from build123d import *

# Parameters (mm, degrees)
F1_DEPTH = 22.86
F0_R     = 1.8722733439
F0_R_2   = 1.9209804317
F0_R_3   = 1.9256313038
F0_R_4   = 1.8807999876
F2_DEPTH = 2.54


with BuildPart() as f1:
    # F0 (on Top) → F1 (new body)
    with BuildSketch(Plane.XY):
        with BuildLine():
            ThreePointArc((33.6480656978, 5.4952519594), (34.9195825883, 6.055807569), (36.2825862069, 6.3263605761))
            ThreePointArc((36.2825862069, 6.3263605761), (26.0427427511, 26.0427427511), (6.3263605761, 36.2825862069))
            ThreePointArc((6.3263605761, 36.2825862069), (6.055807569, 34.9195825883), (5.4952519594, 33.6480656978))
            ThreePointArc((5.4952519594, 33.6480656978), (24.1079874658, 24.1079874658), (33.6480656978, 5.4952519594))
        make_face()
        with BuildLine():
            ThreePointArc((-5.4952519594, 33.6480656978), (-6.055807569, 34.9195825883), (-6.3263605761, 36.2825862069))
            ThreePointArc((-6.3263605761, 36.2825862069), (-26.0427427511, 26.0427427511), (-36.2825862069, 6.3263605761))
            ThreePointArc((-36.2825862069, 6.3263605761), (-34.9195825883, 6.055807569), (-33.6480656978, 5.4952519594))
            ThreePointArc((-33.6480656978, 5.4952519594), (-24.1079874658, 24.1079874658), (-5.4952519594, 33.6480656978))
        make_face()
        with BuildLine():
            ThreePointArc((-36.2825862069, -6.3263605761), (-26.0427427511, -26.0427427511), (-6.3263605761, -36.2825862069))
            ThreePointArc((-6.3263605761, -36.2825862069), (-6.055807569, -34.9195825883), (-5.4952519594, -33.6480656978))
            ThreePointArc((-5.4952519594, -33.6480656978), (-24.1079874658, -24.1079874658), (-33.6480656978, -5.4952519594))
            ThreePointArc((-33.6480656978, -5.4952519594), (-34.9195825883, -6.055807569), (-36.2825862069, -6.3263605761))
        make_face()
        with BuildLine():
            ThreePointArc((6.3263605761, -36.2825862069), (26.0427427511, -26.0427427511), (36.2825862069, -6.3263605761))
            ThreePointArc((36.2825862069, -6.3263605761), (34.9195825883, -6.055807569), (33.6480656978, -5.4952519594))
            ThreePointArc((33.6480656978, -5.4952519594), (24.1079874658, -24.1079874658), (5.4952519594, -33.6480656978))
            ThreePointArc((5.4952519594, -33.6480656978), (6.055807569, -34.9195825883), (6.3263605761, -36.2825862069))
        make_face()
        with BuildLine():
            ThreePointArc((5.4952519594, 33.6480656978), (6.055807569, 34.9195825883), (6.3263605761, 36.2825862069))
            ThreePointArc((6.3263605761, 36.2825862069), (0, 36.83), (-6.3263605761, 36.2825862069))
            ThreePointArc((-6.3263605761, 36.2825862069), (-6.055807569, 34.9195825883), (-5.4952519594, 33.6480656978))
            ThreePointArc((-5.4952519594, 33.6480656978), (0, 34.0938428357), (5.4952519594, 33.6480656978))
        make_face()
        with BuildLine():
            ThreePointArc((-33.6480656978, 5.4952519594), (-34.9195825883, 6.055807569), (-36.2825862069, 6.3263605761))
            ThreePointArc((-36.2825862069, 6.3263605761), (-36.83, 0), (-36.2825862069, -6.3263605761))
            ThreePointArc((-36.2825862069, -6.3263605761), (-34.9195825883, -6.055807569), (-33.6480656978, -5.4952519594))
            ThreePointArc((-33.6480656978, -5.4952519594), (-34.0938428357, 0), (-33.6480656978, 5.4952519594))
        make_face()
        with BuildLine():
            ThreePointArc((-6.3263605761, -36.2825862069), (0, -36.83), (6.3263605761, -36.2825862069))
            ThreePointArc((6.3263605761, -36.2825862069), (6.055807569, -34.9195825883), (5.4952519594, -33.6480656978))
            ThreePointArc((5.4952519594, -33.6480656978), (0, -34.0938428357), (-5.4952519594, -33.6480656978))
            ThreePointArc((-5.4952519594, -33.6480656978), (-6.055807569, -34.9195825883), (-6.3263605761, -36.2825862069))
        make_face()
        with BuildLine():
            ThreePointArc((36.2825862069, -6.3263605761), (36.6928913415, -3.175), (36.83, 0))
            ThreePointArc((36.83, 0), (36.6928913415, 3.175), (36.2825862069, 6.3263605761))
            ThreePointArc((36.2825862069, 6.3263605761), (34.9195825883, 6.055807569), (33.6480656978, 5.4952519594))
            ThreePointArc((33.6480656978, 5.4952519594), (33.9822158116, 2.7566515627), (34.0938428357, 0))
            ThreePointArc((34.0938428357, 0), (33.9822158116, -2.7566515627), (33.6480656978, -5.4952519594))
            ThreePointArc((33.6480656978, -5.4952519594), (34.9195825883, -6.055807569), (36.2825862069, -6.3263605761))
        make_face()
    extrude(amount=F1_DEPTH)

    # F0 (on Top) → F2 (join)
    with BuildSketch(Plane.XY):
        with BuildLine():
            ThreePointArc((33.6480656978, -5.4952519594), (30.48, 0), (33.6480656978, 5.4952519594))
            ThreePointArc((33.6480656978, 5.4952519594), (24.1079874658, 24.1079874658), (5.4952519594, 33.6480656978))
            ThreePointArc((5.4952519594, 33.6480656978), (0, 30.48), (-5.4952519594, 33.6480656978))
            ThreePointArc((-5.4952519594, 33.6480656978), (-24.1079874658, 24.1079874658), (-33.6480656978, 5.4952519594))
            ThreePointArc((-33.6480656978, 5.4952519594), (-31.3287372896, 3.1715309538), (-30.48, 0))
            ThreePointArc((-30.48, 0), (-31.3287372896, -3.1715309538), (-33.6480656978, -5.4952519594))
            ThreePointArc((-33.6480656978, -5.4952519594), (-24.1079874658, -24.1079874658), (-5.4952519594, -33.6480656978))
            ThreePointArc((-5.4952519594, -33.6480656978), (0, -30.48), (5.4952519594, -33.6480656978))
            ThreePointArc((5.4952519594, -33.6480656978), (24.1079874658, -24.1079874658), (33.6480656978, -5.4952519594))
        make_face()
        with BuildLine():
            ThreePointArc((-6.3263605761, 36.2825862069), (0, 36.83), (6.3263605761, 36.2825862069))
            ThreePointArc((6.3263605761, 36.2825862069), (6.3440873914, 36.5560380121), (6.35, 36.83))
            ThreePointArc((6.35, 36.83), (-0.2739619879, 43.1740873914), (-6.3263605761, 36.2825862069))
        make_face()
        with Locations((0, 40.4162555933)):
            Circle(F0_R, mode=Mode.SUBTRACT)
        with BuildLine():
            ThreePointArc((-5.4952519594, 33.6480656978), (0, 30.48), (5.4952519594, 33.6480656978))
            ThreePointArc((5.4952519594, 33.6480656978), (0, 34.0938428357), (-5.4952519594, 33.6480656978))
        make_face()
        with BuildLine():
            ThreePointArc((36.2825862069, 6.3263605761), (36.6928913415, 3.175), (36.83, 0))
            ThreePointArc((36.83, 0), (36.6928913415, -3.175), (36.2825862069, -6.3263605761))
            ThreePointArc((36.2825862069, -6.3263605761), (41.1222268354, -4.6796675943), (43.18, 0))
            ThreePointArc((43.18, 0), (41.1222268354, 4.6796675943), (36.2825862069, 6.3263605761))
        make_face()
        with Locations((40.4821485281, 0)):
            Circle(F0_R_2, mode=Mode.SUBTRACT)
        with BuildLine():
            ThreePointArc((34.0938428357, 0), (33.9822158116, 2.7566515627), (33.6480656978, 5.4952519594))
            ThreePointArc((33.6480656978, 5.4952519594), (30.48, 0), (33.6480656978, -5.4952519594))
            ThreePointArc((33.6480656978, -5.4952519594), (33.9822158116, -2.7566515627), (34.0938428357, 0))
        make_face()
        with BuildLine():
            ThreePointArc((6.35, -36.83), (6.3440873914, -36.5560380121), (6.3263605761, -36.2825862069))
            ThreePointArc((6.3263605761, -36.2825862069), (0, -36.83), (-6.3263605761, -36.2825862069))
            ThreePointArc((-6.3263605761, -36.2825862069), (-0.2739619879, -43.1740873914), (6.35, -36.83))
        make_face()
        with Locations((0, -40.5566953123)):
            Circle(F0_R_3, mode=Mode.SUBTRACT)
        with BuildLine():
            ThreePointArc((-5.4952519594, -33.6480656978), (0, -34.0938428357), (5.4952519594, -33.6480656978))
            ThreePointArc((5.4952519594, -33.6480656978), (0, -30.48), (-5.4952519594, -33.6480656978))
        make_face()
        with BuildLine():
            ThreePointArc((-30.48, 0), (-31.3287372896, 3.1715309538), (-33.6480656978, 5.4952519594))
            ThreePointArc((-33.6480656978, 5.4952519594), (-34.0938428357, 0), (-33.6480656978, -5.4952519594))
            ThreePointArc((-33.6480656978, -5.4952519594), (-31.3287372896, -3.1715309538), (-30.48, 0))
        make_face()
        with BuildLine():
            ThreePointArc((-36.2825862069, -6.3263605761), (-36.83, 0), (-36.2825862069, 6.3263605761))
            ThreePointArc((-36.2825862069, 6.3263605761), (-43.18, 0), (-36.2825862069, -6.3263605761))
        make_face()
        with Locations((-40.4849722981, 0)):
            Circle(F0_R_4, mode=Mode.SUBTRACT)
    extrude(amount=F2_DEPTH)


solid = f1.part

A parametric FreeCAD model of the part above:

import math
import FreeCAD as App
import Part
import Sketcher
Q = App.Units.Quantity

doc = App.newDocument("Part")
params = doc.addObject("Spreadsheet::Sheet", "Params")
for row, (alias, value) in enumerate([
    ("sketch1_radius", "1.45 in"),
    ("pad1_length", "0.9 in"),
    ("sketch2_radius", "1.45 in"),
    ("sketch2_radius2", "0.25 in"),
    ("pad2_length", "0.1 in"),
], start=1):
    params.set(f"A{row}", alias)
    params.set(f"B{row}", "=" + value)
    params.setAlias(f"B{row}", alias)

body = doc.addObject("PartDesign::Body", "Body")

# Sketch on XY plane
sketch1 = body.newObject("Sketcher::SketchObject", "Sketch")
sketch1.AttachmentSupport = (doc.getObject("XY_Plane"), [""])
sketch1.MapMode = "FlatFace"
sketch1.addGeometry([
    Part.ArcOfCircle(Part.Circle(App.Vector(0, 0, 0), App.Vector(0, 0, 1), 37), math.radians(10), math.radians(350)),  # 0
    Part.ArcOfCircle(Part.Circle(App.Vector(0, 0, 0), App.Vector(0, 0, 1), 37), math.radians(-9.89), math.radians(0)),  # 1
    Part.ArcOfCircle(Part.Circle(App.Vector(0, 0, 0), App.Vector(0, 0, 1), 37), math.radians(0), math.radians(9.89)),  # 2
    Part.ArcOfCircle(Part.Circle(App.Vector(0, 0, 0), App.Vector(0, 0, 1), 34), math.radians(-81), math.radians(-9)),  # 3
    Part.ArcOfCircle(Part.Circle(App.Vector(0, 0, 0), App.Vector(0, 0, 1), 34), math.radians(-99.28), math.radians(-80.72)),  # 4
    Part.ArcOfCircle(Part.Circle(App.Vector(0, 0, 0), App.Vector(0, 0, 1), 34), math.radians(-171), math.radians(-99)),  # 5
    Part.ArcOfCircle(Part.Circle(App.Vector(0, 0, 0), App.Vector(0, 0, 1), 34), math.radians(170.72), math.radians(189.28)),  # 6
    Part.ArcOfCircle(Part.Circle(App.Vector(0, 0, 0), App.Vector(0, 0, 1), 34), math.radians(99), math.radians(171)),  # 7
    Part.ArcOfCircle(Part.Circle(App.Vector(0, 0, 0), App.Vector(0, 0, 1), 34), math.radians(80.72), math.radians(99.28)),  # 8
    Part.ArcOfCircle(Part.Circle(App.Vector(0, 0, 0), App.Vector(0, 0, 1), 34), math.radians(9), math.radians(81)),  # 9
    Part.ArcOfCircle(Part.Circle(App.Vector(0, 0, 0), App.Vector(0, 0, 1), 34), math.radians(0), math.radians(9.28)),  # 10
    Part.ArcOfCircle(Part.Circle(App.Vector(0, 0, 0), App.Vector(0, 0, 1), 34), math.radians(-9.28), math.radians(0)),  # 11
], False)
sketch1.addConstraint([
    Sketcher.Constraint("Tangent", 0, 2, 1, 1),
    Sketcher.Constraint("Tangent", 1, 2, 2, 1),
    Sketcher.Constraint("Coincident", 2, 2, 0, 1),
    Sketcher.Constraint("Tangent", 3, 1, 4, 2),
    Sketcher.Constraint("Tangent", 4, 1, 5, 2),
    Sketcher.Constraint("Tangent", 5, 1, 6, 2),
    Sketcher.Constraint("Tangent", 6, 1, 7, 2),
    Sketcher.Constraint("Tangent", 7, 1, 8, 2),
    Sketcher.Constraint("Tangent", 8, 1, 9, 2),
    Sketcher.Constraint("Tangent", 9, 1, 10, 2),
    Sketcher.Constraint("Tangent", 10, 1, 11, 2),
    Sketcher.Constraint("Tangent", 11, 1, 3, 2),
    Sketcher.Constraint("Coincident", 0, 3, -1, 1),
    Sketcher.Constraint("Coincident", 3, 3, -1, 1),
    Sketcher.Constraint("Coincident", 5, 3, -1, 1),
    Sketcher.Constraint("Coincident", 7, 3, -1, 1),
    Sketcher.Constraint("Coincident", 9, 3, -1, 1),
    Sketcher.Constraint("Equal", 0, 1),
    Sketcher.Constraint("PointOnObject", 1, 2, -1),
    Sketcher.Constraint("PointOnObject", 10, 1, -1),
    Sketcher.Constraint("Horizontal", 3, 1, 4, 1),
    Sketcher.Constraint("Horizontal", 7, 1, 8, 1),
    Sketcher.Constraint("Horizontal", 6, 1, 9, 1),
    Sketcher.Constraint("Horizontal", 5, 1, 11, 1),
    Sketcher.Constraint("Vertical", 0, 2, 2, 2),
    Sketcher.Constraint("Vertical", 5, 1, 6, 1),
    Sketcher.Constraint("Vertical", 4, 1, 7, 1),
    Sketcher.Constraint("Radius", 0, Q("1.45 in")),
    Sketcher.Constraint("Radius", 3, 34.093843),
    Sketcher.Constraint("DistanceY", 0, 2, -1, 1, 6.326361),
    Sketcher.Constraint("DistanceX", -1, 1, 3, 1, 5.495252),
    Sketcher.Constraint("DistanceY", 5, 1, -1, 1, 5.495252),
])
sketch1.setExpression("Constraints[27]", "Params.sketch1_radius")
pad1 = body.newObject("PartDesign::Pad", "Pad")
pad1.Profile = sketch1
pad1.setExpression("Length", "Params.pad1_length")

# Sketch on XY plane
sketch2 = body.newObject("Sketcher::SketchObject", "Sketch001")
sketch2.AttachmentSupport = (doc.getObject("XY_Plane"), [""])
sketch2.MapMode = "FlatFace"
sketch2.addGeometry([
    Part.ArcOfCircle(Part.Circle(App.Vector(0, 0, 0), App.Vector(0, 0, 1), 34.1), math.radians(9), math.radians(81)),  # 0
    Part.ArcOfCircle(Part.Circle(App.Vector(0, 0, 0), App.Vector(0, 0, 1), 34.1), math.radians(80.72), math.radians(99.28)),  # 1
    Part.ArcOfCircle(Part.Circle(App.Vector(0, 0, 0), App.Vector(0, 0, 1), 34.1), math.radians(99), math.radians(171)),  # 2
    Part.ArcOfCircle(Part.Circle(App.Vector(0, 0, 0), App.Vector(0, 0, 1), 34.1), math.radians(170.72), math.radians(189.28)),  # 3
    Part.ArcOfCircle(Part.Circle(App.Vector(0, 0, 0), App.Vector(0, 0, 1), 34.1), math.radians(-171), math.radians(-99)),  # 4
    Part.ArcOfCircle(Part.Circle(App.Vector(0, 0, 0), App.Vector(0, 0, 1), 34.1), math.radians(-99.28), math.radians(-80.72)),  # 5
    Part.ArcOfCircle(Part.Circle(App.Vector(0, 0, 0), App.Vector(0, 0, 1), 34.1), math.radians(-81), math.radians(-9)),  # 6
    Part.ArcOfCircle(Part.Circle(App.Vector(0, 0, 0), App.Vector(0, 0, 1), 34.1), math.radians(-9.28), math.radians(0)),  # 7
    Part.ArcOfCircle(Part.Circle(App.Vector(0, 0, 0), App.Vector(0, 0, 1), 34.1), math.radians(0), math.radians(9.28)),  # 8
    Part.ArcOfCircle(Part.Circle(App.Vector(0, 0, 0), App.Vector(0, 0, 1), 36.8), math.radians(80.11), math.radians(99.89)),  # 9
    Part.ArcOfCircle(Part.Circle(App.Vector(0, 36.8, 0), App.Vector(0, 0, 1), 6.3), math.radians(-4.95), math.radians(0)),  # 10
    Part.ArcOfCircle(Part.Circle(App.Vector(0, 36.8, 0), App.Vector(0, 0, 1), 6.3), math.radians(0), math.radians(185)),  # 11
    Part.Circle(App.Vector(0, 40.4, 0), App.Vector(0, 0, 1), 1.9),  # 12
    Part.ArcOfCircle(Part.Circle(App.Vector(0, 0, 0), App.Vector(0, 0, 1), 36.8), math.radians(0), math.radians(9.89)),  # 13
    Part.ArcOfCircle(Part.Circle(App.Vector(0, 0, 0), App.Vector(0, 0, 1), 36.8), math.radians(-9.89), math.radians(0)),  # 14
    Part.ArcOfCircle(Part.Circle(App.Vector(36.8, 0, 0), App.Vector(0, 0, 1), 6.3), math.radians(-95), math.radians(0)),  # 15
    Part.ArcOfCircle(Part.Circle(App.Vector(36.8, 0, 0), App.Vector(0, 0, 1), 6.3), math.radians(0), math.radians(95)),  # 16
    Part.Circle(App.Vector(40.5, 0, 0), App.Vector(0, 0, 1), 1.9),  # 17
    Part.ArcOfCircle(Part.Circle(App.Vector(0, -36.8, 0), App.Vector(0, 0, 1), 6.3), math.radians(0), math.radians(4.95)),  # 18
    Part.ArcOfCircle(Part.Circle(App.Vector(0, 0, 0), App.Vector(0, 0, 1), 36.8), math.radians(-99.89), math.radians(-80.11)),  # 19
    Part.ArcOfCircle(Part.Circle(App.Vector(0, -36.8, 0), App.Vector(0, 0, 1), 6.3), math.radians(175), math.radians(360)),  # 20
    Part.Circle(App.Vector(0, -40.6, 0), App.Vector(0, 0, 1), 1.9),  # 21
    Part.ArcOfCircle(Part.Circle(App.Vector(0, 0, 0), App.Vector(0, 0, 1), 36.8), math.radians(170.11), math.radians(189.89)),  # 22
    Part.ArcOfCircle(Part.Circle(App.Vector(-36.8, 0, 0), App.Vector(0, 0, 1), 6.3), math.radians(85), math.radians(275)),  # 23
    Part.Circle(App.Vector(-40.5, 0, 0), App.Vector(0, 0, 1), 1.9),  # 24
], False)
sketch2.addConstraint([
    Sketcher.Constraint("Tangent", 0, 2, 1, 1),
    Sketcher.Constraint("Tangent", 1, 2, 2, 1),
    Sketcher.Constraint("Tangent", 2, 2, 3, 1),
    Sketcher.Constraint("Tangent", 3, 2, 4, 1),
    Sketcher.Constraint("Tangent", 4, 2, 5, 1),
    Sketcher.Constraint("Tangent", 5, 2, 6, 1),
    Sketcher.Constraint("Tangent", 6, 2, 7, 1),
    Sketcher.Constraint("Tangent", 7, 2, 8, 1),
    Sketcher.Constraint("Tangent", 8, 2, 0, 1),
    Sketcher.Constraint("Coincident", 9, 1, 10, 1),
    Sketcher.Constraint("Tangent", 10, 2, 11, 1),
    Sketcher.Constraint("Coincident", 11, 2, 9, 2),
    Sketcher.Constraint("Tangent", 13, 1, 14, 2),
    Sketcher.Constraint("Coincident", 14, 1, 15, 1),
    Sketcher.Constraint("Tangent", 15, 2, 16, 1),
    Sketcher.Constraint("Coincident", 16, 2, 13, 2),
    Sketcher.Constraint("Coincident", 18, 2, 19, 2),
    Sketcher.Constraint("Coincident", 19, 1, 20, 1),
    Sketcher.Constraint("Tangent", 20, 2, 18, 1),
    Sketcher.Constraint("Coincident", 22, 1, 23, 1),
    Sketcher.Constraint("Coincident", 23, 2, 22, 2),
    Sketcher.Constraint("Coincident", 0, 3, -1, 1),
    Sketcher.Constraint("Coincident", 2, 3, -1, 1),
    Sketcher.Constraint("Coincident", 4, 3, -1, 1),
    Sketcher.Constraint("Coincident", 6, 3, -1, 1),
    Sketcher.Constraint("Coincident", 9, 3, -1, 1),
    Sketcher.Constraint("Coincident", 13, 3, -1, 1),
    Sketcher.Constraint("Coincident", 19, 3, -1, 1),
    Sketcher.Constraint("Coincident", 22, 3, -1, 1),
    Sketcher.Constraint("Coincident", 13, 1, 15, 3),
    Sketcher.Constraint("Equal", 10, 11),
    Sketcher.Constraint("Equal", 9, 13),
    Sketcher.Constraint("Equal", 13, 14),
    Sketcher.Constraint("Equal", 11, 15),
    Sketcher.Constraint("Equal", 15, 16),
    Sketcher.Constraint("Equal", 16, 18),
    Sketcher.Constraint("Equal", 14, 19),
    Sketcher.Constraint("Equal", 18, 20),
    Sketcher.Constraint("Equal", 19, 22),
    Sketcher.Constraint("Equal", 20, 23),
    Sketcher.Constraint("Symmetric", 10, 3, 18, 3, -1, 1),
    Sketcher.Constraint("Symmetric", 15, 3, 23, 3, -1, 1),
    Sketcher.Constraint("Symmetric", 10, 2, 20, 2, -1),
    Sketcher.Constraint("PointOnObject", 12, 3, -2),
    Sketcher.Constraint("PointOnObject", 15, 3, -1),
    Sketcher.Constraint("PointOnObject", 17, 3, -1),
    Sketcher.Constraint("PointOnObject", 21, 3, -2),
    Sketcher.Constraint("PointOnObject", 24, 3, -1),
    Sketcher.Constraint("PointOnObject", 7, 2, -1),
    Sketcher.Constraint("PointOnObject", 15, 2, -1),
    Sketcher.Constraint("Horizontal", 0, 2, 1, 2),
    Sketcher.Constraint("Horizontal", 4, 2, 5, 2),
    Sketcher.Constraint("Horizontal", 3, 2, 6, 2),
    Sketcher.Constraint("Horizontal", 2, 2, 8, 2),
    Sketcher.Constraint("Horizontal", 11, 3, 10, 2),
    Sketcher.Constraint("Vertical", 2, 2, 3, 2),
    Sketcher.Constraint("Vertical", 1, 2, 4, 2),
    Sketcher.Constraint("Radius", 9, Q("1.45 in")),
    Sketcher.Constraint("Radius", 10, Q("0.25 in")),
    Sketcher.Constraint("Diameter", 24, 3.7616),
    Sketcher.Constraint("DistanceY", -1, 1, 10, 3, Q("1.45 in")),
    Sketcher.Constraint("Diameter", 17, 3.841961),
    Sketcher.Constraint("Diameter", 12, 3.744547),
    Sketcher.Constraint("Diameter", 21, 3.851263),
    Sketcher.Constraint("Radius", 0, 34.093843),
    Sketcher.Constraint("DistanceX", -1, 1, 17, 3, 40.482149),
    Sketcher.Constraint("DistanceX", -1, 1, 0, 2, 5.495252),
    Sketcher.Constraint("DistanceY", -1, 1, 2, 2, 5.495252),
    Sketcher.Constraint("DistanceY", 0, 2, 12, 3, 6.76819),
    Sketcher.Constraint("DistanceY", 21, 3, 4, 2, 6.90863),
    Sketcher.Constraint("DistanceX", 24, 3, -1, 1, 40.484972),
])
sketch2.setExpression("Constraints[57]", "Params.sketch2_radius")
sketch2.setExpression("Constraints[58]", "Params.sketch2_radius2")
pad2 = body.newObject("PartDesign::Pad", "Pad001")
pad2.Profile = sketch2
pad2.setExpression("Length", "Params.pad2_length")

doc.recompute()
